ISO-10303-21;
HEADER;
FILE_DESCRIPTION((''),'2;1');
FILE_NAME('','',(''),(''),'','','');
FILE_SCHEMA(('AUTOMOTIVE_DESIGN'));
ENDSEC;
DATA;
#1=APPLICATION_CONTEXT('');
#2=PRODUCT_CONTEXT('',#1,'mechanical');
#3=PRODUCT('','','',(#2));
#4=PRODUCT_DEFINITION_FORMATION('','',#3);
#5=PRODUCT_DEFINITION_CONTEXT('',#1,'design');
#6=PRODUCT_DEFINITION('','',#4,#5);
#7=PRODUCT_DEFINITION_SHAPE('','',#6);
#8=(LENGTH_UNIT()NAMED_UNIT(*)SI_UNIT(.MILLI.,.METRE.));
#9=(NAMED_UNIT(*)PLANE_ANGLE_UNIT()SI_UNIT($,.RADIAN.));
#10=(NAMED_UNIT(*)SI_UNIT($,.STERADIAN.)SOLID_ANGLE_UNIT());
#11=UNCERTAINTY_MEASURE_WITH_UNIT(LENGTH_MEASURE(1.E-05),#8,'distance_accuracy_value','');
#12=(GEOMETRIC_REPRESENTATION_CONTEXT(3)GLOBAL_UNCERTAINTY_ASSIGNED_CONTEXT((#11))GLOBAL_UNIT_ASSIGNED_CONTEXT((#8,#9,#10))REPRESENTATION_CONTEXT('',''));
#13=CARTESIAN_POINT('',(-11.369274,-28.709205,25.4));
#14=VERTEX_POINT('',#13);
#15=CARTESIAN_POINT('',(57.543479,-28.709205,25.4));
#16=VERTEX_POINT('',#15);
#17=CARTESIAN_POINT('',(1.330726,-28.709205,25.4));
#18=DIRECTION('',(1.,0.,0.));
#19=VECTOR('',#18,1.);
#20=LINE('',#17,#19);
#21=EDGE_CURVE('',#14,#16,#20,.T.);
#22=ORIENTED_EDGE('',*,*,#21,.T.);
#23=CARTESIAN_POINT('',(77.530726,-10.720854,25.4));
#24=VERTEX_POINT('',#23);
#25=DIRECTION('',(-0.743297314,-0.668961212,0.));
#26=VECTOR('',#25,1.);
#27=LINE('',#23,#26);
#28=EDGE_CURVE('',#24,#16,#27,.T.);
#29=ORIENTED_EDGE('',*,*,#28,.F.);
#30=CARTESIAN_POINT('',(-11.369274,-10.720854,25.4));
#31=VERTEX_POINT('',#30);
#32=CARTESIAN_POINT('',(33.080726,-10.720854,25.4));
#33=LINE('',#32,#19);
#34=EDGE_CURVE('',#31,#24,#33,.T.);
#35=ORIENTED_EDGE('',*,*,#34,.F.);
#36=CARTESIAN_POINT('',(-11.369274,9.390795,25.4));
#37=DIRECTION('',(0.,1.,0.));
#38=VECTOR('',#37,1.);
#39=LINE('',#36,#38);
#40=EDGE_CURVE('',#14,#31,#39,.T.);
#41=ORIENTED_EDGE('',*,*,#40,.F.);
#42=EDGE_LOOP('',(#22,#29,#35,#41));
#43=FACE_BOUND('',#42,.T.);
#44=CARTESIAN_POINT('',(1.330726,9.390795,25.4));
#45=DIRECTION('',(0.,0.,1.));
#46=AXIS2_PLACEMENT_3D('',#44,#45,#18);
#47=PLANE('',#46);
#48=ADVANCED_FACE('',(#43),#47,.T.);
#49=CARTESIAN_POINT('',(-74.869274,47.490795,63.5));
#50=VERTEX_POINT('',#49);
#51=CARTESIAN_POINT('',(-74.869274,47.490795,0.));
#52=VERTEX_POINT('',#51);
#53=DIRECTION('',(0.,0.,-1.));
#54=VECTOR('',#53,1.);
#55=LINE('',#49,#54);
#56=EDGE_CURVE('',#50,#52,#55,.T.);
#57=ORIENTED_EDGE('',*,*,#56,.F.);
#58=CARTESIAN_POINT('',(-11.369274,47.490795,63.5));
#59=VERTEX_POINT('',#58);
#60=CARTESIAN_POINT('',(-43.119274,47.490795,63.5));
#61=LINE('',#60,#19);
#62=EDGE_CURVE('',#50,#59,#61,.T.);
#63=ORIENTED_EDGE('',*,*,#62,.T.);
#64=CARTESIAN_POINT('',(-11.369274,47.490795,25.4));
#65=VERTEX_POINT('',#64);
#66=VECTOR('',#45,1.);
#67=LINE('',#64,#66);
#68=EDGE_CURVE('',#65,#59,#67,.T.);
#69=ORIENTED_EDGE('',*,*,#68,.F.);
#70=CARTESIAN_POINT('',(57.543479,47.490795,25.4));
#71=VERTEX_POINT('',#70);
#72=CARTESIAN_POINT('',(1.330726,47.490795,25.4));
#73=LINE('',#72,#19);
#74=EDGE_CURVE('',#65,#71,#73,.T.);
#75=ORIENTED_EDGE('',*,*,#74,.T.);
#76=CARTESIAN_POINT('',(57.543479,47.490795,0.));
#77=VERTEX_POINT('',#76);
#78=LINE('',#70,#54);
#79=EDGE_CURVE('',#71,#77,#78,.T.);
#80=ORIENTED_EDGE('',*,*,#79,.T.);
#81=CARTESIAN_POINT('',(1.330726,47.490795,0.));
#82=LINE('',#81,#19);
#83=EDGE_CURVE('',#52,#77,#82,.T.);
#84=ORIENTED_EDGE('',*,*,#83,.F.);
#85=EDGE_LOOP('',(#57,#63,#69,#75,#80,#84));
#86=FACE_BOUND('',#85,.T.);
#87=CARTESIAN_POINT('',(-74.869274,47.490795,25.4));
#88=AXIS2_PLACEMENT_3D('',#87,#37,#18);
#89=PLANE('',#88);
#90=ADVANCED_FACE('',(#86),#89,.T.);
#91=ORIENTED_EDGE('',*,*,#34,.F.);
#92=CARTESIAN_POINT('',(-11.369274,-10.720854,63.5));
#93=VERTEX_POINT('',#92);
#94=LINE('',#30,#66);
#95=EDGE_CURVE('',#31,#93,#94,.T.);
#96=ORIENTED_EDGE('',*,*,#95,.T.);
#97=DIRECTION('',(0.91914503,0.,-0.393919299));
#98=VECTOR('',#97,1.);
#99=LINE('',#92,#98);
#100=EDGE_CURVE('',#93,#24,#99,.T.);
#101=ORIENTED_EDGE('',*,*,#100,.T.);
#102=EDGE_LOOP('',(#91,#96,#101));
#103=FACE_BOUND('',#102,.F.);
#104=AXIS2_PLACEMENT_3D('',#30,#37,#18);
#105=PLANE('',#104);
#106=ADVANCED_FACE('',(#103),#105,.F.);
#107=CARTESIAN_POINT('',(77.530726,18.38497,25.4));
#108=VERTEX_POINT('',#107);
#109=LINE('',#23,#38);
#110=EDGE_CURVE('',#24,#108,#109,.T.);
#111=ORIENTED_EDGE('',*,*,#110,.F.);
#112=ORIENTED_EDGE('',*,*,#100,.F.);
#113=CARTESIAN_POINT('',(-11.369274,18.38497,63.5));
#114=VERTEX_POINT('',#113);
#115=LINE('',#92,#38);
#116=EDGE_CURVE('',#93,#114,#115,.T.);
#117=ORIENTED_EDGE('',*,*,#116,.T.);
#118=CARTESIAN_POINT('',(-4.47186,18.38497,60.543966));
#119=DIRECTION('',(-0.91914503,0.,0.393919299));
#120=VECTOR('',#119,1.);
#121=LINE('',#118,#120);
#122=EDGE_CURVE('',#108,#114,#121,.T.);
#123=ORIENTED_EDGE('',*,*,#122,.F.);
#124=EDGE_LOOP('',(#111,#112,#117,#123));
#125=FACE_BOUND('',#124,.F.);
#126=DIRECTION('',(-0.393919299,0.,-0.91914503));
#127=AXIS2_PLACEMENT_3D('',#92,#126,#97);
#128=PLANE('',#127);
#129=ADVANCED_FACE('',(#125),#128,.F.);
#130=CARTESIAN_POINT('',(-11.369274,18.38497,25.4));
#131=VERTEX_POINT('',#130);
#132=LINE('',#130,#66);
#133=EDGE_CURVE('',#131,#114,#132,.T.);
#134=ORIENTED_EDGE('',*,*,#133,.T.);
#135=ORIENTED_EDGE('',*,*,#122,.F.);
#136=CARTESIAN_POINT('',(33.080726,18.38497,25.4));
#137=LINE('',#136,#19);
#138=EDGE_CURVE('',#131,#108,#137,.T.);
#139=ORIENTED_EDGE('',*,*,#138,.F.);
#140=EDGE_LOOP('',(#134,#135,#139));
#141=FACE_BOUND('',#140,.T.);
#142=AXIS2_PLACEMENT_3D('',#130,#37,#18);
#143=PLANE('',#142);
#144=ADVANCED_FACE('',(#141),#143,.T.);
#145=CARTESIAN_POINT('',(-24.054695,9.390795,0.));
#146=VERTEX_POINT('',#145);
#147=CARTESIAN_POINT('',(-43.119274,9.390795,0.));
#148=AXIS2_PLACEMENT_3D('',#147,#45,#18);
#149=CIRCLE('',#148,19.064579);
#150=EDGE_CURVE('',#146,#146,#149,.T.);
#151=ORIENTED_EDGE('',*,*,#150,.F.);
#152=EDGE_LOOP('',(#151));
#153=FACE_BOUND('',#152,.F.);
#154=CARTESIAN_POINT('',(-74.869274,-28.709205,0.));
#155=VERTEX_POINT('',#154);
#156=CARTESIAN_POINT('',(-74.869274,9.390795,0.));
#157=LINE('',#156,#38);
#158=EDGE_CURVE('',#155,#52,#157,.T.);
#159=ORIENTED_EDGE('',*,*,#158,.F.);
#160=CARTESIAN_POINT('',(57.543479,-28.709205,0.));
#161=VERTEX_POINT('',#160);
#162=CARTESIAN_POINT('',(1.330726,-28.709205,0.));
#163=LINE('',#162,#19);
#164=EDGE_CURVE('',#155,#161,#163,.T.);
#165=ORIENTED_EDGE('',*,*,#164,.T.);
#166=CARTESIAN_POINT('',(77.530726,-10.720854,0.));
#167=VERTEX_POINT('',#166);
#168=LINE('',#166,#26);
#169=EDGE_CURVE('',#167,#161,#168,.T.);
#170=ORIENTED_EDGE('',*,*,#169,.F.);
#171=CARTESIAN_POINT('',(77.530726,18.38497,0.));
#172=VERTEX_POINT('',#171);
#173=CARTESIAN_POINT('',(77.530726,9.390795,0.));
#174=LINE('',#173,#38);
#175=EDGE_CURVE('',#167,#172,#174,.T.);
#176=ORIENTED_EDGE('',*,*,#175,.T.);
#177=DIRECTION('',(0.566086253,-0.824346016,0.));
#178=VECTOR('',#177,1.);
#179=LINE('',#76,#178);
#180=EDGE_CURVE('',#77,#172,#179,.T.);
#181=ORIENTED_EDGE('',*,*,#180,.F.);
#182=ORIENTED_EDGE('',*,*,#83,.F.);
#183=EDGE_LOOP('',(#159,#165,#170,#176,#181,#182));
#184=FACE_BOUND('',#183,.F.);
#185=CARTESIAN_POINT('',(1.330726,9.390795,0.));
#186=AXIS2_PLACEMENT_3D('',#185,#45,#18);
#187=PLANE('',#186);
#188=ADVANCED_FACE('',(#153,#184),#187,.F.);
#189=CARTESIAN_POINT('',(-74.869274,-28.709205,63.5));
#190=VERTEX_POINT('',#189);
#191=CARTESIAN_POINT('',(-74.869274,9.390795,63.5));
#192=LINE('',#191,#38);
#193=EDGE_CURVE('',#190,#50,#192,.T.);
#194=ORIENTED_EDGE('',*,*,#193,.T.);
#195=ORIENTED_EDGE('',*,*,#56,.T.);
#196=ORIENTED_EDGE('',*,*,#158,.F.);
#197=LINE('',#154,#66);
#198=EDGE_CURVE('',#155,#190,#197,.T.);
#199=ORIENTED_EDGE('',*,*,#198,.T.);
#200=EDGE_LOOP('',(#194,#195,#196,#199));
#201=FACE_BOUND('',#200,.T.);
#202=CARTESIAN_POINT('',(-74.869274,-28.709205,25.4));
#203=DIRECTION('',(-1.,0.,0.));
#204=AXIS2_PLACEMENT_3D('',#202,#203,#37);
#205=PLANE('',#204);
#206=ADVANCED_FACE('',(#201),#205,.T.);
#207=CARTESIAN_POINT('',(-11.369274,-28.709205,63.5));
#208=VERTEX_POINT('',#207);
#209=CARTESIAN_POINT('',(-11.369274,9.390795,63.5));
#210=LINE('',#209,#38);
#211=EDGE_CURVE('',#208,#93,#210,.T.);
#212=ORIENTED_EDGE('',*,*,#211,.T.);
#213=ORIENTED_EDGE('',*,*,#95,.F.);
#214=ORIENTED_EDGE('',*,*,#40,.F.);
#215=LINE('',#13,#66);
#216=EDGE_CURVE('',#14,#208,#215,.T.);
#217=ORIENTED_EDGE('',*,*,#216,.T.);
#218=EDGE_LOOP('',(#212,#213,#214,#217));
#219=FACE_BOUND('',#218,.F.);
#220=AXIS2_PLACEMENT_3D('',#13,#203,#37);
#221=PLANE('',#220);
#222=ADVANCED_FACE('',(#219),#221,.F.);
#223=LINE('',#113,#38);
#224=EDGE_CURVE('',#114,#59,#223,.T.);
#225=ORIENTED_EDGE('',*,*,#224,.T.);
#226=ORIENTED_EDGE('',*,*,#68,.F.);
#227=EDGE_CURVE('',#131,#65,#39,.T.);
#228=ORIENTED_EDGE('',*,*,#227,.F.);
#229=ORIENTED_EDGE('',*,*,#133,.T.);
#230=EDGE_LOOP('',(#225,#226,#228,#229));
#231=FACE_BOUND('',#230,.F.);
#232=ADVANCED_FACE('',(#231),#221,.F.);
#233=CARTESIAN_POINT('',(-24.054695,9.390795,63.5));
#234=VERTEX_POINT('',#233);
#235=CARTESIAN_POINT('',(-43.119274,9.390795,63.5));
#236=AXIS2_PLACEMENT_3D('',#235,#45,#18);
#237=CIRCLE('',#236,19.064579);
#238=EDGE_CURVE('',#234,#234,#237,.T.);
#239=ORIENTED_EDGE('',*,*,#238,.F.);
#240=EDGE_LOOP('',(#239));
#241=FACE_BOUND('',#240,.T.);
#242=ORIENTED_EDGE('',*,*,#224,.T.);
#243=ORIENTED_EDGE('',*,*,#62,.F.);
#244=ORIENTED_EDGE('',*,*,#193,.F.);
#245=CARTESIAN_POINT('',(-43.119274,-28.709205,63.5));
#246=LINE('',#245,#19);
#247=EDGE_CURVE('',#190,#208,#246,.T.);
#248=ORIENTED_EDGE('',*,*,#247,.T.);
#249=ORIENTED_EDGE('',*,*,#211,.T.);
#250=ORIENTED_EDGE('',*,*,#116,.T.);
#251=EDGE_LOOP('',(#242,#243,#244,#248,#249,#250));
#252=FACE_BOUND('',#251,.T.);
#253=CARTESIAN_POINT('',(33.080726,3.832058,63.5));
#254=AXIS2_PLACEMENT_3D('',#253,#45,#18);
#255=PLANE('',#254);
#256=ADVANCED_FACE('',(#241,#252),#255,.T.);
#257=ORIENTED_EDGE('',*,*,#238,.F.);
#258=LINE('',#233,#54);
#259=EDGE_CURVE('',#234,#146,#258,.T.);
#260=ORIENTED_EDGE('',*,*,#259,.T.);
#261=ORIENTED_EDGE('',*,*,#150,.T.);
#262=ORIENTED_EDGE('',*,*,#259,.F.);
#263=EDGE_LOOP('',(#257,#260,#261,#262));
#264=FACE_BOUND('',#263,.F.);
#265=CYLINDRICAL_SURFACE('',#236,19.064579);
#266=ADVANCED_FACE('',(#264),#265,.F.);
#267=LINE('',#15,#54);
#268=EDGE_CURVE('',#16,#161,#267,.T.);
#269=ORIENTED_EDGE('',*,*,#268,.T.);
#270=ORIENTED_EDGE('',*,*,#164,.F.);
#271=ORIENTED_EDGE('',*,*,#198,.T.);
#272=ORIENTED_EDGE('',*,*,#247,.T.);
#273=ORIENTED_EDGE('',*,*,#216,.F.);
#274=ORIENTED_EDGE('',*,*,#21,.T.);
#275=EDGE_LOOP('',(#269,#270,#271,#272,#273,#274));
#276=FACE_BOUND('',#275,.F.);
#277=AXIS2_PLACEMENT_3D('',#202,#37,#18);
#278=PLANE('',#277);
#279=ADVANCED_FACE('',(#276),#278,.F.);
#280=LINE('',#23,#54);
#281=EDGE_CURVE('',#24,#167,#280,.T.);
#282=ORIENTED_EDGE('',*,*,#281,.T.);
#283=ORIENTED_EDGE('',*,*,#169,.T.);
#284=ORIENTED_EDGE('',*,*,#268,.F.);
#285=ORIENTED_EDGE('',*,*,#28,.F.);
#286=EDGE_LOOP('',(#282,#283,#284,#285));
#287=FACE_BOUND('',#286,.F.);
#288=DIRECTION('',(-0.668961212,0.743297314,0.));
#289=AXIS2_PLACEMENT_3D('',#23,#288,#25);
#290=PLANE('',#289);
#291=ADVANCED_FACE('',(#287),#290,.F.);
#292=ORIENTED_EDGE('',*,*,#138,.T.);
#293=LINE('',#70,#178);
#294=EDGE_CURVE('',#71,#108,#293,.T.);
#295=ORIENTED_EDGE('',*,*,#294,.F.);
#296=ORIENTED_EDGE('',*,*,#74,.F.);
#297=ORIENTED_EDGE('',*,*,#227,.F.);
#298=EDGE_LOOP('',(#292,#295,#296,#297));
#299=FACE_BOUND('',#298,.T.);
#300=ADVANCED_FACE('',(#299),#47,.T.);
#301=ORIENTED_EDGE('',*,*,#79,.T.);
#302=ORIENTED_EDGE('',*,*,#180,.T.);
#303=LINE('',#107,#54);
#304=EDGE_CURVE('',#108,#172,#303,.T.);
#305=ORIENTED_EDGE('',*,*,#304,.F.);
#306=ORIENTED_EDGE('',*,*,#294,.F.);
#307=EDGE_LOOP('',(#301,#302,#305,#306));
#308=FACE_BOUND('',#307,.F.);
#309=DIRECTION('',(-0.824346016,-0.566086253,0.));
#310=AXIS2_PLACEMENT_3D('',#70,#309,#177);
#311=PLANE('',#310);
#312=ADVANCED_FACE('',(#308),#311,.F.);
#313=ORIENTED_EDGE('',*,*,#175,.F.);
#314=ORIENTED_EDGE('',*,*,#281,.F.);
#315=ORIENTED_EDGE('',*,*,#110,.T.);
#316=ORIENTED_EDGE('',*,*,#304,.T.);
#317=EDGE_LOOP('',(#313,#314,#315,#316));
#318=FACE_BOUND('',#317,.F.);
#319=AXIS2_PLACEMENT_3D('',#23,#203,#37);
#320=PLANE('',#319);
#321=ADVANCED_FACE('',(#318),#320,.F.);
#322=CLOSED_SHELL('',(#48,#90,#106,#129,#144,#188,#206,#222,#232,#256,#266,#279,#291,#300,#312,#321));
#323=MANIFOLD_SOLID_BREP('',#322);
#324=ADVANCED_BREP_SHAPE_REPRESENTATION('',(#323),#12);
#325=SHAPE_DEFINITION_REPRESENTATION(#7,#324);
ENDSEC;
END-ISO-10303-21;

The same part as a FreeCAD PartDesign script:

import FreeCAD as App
import Part
import Sketcher
Q = App.Units.Quantity

doc = App.newDocument("Part")
params = doc.addObject("Spreadsheet::Sheet", "Params")
for row, (alias, value) in enumerate([
    ("sketch1_width", "6 in"),
    ("sketch1_height", "3 in"),
    ("pad1_length", "1 in"),
    ("sketch2_height", "3 in"),
    ("sketch2_width", "2.5 in"),
    ("pad2_length", "1.5 in"),
    ("pocket1_length", "1 in"),
    ("pocket2_length", "1 in"),
    ("sketch5_width", "3.5 in"),
    ("pad3_length", "1.5 in"),
    ("sketch6_width", "3.5 in"),
    ("sketch6_height", "1.5 in"),
    ("pocket3_length", "1.5 in"),
    ("pocket4_length", "3 in"),
], start=1):
    params.set(f"A{row}", alias)
    params.set(f"B{row}", "=" + value)
    params.setAlias(f"B{row}", alias)

body = doc.addObject("PartDesign::Body", "Body")

# Sketch on XY plane
sketch1 = doc.addObject("Sketcher::SketchObject", "Sketch")
body.addObject(sketch1)
sketch1.AttachmentSupport = (doc.XY_Plane, [""])
sketch1.MapMode = "FlatFace"
sketch1.addGeometry([
    Part.LineSegment(App.Vector(-75, 47, 0), App.Vector(-75, -29, 0)),
    Part.LineSegment(App.Vector(-75, -29, 0), App.Vector(78, -29, 0)),
    Part.LineSegment(App.Vector(78, -29, 0), App.Vector(78, 47, 0)),
    Part.LineSegment(App.Vector(78, 47, 0), App.Vector(-75, 47, 0)),
], False)
sketch1.addConstraint([
    Sketcher.Constraint("Coincident", 0, 2, 1, 1),
    Sketcher.Constraint("Coincident", 1, 2, 2, 1),
    Sketcher.Constraint("Coincident", 2, 2, 3, 1),
    Sketcher.Constraint("Coincident", 3, 2, 0, 1),
    Sketcher.Constraint("Vertical", 0),
    Sketcher.Constraint("Horizontal", 1),
    Sketcher.Constraint("Vertical", 2),
    Sketcher.Constraint("Horizontal", 3),
    Sketcher.Constraint("DistanceX", 1, 1, 1, 2, Q("6 in")),
    Sketcher.Constraint("DistanceY", 0, 2, 0, 1, Q("3 in")),
    Sketcher.Constraint("DistanceX", 0, 2, -1, 1, Q("74.869274 mm")),
    Sketcher.Constraint("DistanceY", 0, 2, -1, 1, Q("28.709205 mm")),
])
sketch1.setExpression("Constraints[8]", "Params.sketch1_width")
sketch1.setExpression("Constraints[9]", "Params.sketch1_height")
pad1 = doc.addObject("PartDesign::Pad", "Pad")
body.addObject(pad1)
pad1.Profile = sketch1
pad1.setExpression("Length", "Params.pad1_length")

# Sketch on XY plane
sketch2 = doc.addObject("Sketcher::SketchObject", "Sketch001")
body.addObject(sketch2)
sketch2.AttachmentSupport = (doc.XY_Plane, [""])
sketch2.MapMode = "FlatFace"
sketch2.AttachmentOffset = App.Placement(App.Vector(0, 0, 1 * 25.4), App.Rotation())
sketch2.addGeometry([
    Part.LineSegment(App.Vector(-75, 47, 0), App.Vector(-75, -29, 0)),
    Part.LineSegment(App.Vector(-75, -29, 0), App.Vector(-11, -29, 0)),
    Part.LineSegment(App.Vector(-11, -29, 0), App.Vector(-11, 47, 0)),
    Part.LineSegment(App.Vector(-11, 47, 0), App.Vector(-75, 47, 0)),
], False)
sketch2.addConstraint([
    Sketcher.Constraint("Coincident", 0, 2, 1, 1),
    Sketcher.Constraint("Coincident", 1, 2, 2, 1),
    Sketcher.Constraint("Coincident", 2, 2, 3, 1),
    Sketcher.Constraint("Coincident", 3, 2, 0, 1),
    Sketcher.Constraint("Vertical", 0),
    Sketcher.Constraint("Horizontal", 1),
    Sketcher.Constraint("Vertical", 2),
    Sketcher.Constraint("Horizontal", 3),
    Sketcher.Constraint("DistanceY", 0, 2, 0, 1, Q("3 in")),
    Sketcher.Constraint("DistanceX", 1, 1, 1, 2, Q("2.5 in")),
    Sketcher.Constraint("DistanceX", 0, 2, -1, 1, Q("74.869274 mm")),
    Sketcher.Constraint("DistanceY", 0, 2, -1, 1, Q("28.709205 mm")),
])
sketch2.setExpression("Constraints[8]", "Params.sketch2_height")
sketch2.setExpression("Constraints[9]", "Params.sketch2_width")
pad2 = doc.addObject("PartDesign::Pad", "Pad001")
body.addObject(pad2)
pad2.Profile = sketch2
pad2.setExpression("Length", "Params.pad2_length")

# Sketch on XY plane
sketch3 = doc.addObject("Sketcher::SketchObject", "Sketch002")
body.addObject(sketch3)
sketch3.AttachmentSupport = (doc.XY_Plane, [""])
sketch3.MapMode = "FlatFace"
sketch3.AttachmentOffset = App.Placement(App.Vector(0, 0, 1 * 25.4), App.Rotation())
sketch3.addGeometry([
    Part.LineSegment(App.Vector(58, -29, 0), App.Vector(78, -29, 0)),
    Part.LineSegment(App.Vector(78, -29, 0), App.Vector(78, -11, 0)),
    Part.LineSegment(App.Vector(78, -11, 0), App.Vector(58, -29, 0)),
], False)
sketch3.addConstraint([
    Sketcher.Constraint("Coincident", 0, 2, 1, 1),
    Sketcher.Constraint("Coincident", 1, 2, 2, 1),
    Sketcher.Constraint("Coincident", 2, 2, 0, 1),
    Sketcher.Constraint("Horizontal", 0),
    Sketcher.Constraint("Vertical", 1),
    Sketcher.Constraint("DistanceY", 1, 1, 1, 2, Q("17.988351 mm")),
    Sketcher.Constraint("DistanceX", 0, 1, 0, 2, Q("19.987247 mm")),
    Sketcher.Constraint("DistanceX", -1, 1, 2, 2, Q("57.543479 mm")),
    Sketcher.Constraint("DistanceY", 0, 2, -1, 1, Q("28.709205 mm")),
])
pocket1 = doc.addObject("PartDesign::Pocket", "Pocket")
body.addObject(pocket1)
pocket1.Profile = sketch3
pocket1.setExpression("Length", "Params.pocket1_length")

# Sketch on XY plane
sketch4 = doc.addObject("Sketcher::SketchObject", "Sketch003")
body.addObject(sketch4)
sketch4.AttachmentSupport = (doc.XY_Plane, [""])
sketch4.MapMode = "FlatFace"
sketch4.AttachmentOffset = App.Placement(App.Vector(0, 0, 1 * 25.4), App.Rotation())
sketch4.addGeometry([
    Part.LineSegment(App.Vector(78, 47, 0), App.Vector(58, 47, 0)),
    Part.LineSegment(App.Vector(58, 47, 0), App.Vector(78, 18, 0)),
    Part.LineSegment(App.Vector(78, 18, 0), App.Vector(78, 47, 0)),
], False)
sketch4.addConstraint([
    Sketcher.Constraint("Coincident", 0, 2, 1, 1),
    Sketcher.Constraint("Coincident", 1, 2, 2, 1),
    Sketcher.Constraint("Coincident", 2, 2, 0, 1),
    Sketcher.Constraint("Horizontal", 0),
    Sketcher.Constraint("Vertical", 2),
    Sketcher.Constraint("DistanceX", 0, 2, 0, 1, Q("19.987247 mm")),
    Sketcher.Constraint("DistanceY", 2, 1, 2, 2, Q("29.105825 mm")),
    Sketcher.Constraint("DistanceX", -1, 1, 0, 2, Q("57.543479 mm")),
    Sketcher.Constraint("DistanceY", -1, 1, 1, 2, Q("18.38497 mm")),
])
pocket2 = doc.addObject("PartDesign::Pocket", "Pocket001")
body.addObject(pocket2)
pocket2.Profile = sketch4
pocket2.setExpression("Length", "Params.pocket2_length")

# Sketch on XY plane
sketch5 = doc.addObject("Sketcher::SketchObject", "Sketch004")
body.addObject(sketch5)
sketch5.AttachmentSupport = (doc.XY_Plane, [""])
sketch5.MapMode = "FlatFace"
sketch5.AttachmentOffset = App.Placement(App.Vector(0, 0, 1 * 25.4), App.Rotation())
sketch5.addGeometry([
    Part.LineSegment(App.Vector(-11, 18, 0), App.Vector(-11, -11, 0)),
    Part.LineSegment(App.Vector(-11, -11, 0), App.Vector(78, -11, 0)),
    Part.LineSegment(App.Vector(78, -11, 0), App.Vector(78, 18, 0)),
    Part.LineSegment(App.Vector(78, 18, 0), App.Vector(-11, 18, 0)),
], False)
sketch5.addConstraint([
    Sketcher.Constraint("Coincident", 0, 2, 1, 1),
    Sketcher.Constraint("Coincident", 1, 2, 2, 1),
    Sketcher.Constraint("Coincident", 2, 2, 3, 1),
    Sketcher.Constraint("Coincident", 3, 2, 0, 1),
    Sketcher.Constraint("Vertical", 0),
    Sketcher.Constraint("Horizontal", 1),
    Sketcher.Constraint("Vertical", 2),
    Sketcher.Constraint("Horizontal", 3),
    Sketcher.Constraint("DistanceX", 1, 1, 1, 2, Q("3.5 in")),
    Sketcher.Constraint("DistanceY", 0, 2, 0, 1, Q("29.105824 mm")),
    Sketcher.Constraint("DistanceY", -1, 1, 2, 2, Q("18.38497 mm")),
    Sketcher.Constraint("DistanceX", 0, 2, -1, 1, Q("11.369274 mm")),
])
sketch5.setExpression("Constraints[8]", "Params.sketch5_width")
pad3 = doc.addObject("PartDesign::Pad", "Pad002")
body.addObject(pad3)
pad3.Profile = sketch5
pad3.setExpression("Length", "Params.pad3_length")

# Sketch on XZ plane
sketch6 = doc.addObject("Sketcher::SketchObject", "Sketch005")
body.addObject(sketch6)
sketch6.AttachmentSupport = (doc.XZ_Plane, [""])
sketch6.MapMode = "FlatFace"
sketch6.AttachmentOffset = App.Placement(App.Vector(0, 0, 10.720854), App.Rotation())
sketch6.addGeometry([
    Part.LineSegment(App.Vector(78, 64, 0), App.Vector(-11, 64, 0)),
    Part.LineSegment(App.Vector(-11, 64, 0), App.Vector(78, 25, 0)),
    Part.LineSegment(App.Vector(78, 25, 0), App.Vector(78, 64, 0)),
], False)
sketch6.addConstraint([
    Sketcher.Constraint("Coincident", 0, 2, 1, 1),
    Sketcher.Constraint("Coincident", 1, 2, 2, 1),
    Sketcher.Constraint("Coincident", 2, 2, 0, 1),
    Sketcher.Constraint("Horizontal", 0),
    Sketcher.Constraint("Vertical", 2),
    Sketcher.Constraint("DistanceX", 0, 2, 0, 1, Q("3.5 in")),
    Sketcher.Constraint("DistanceY", 2, 1, 2, 2, Q("1.5 in")),
    Sketcher.Constraint("DistanceY", -1, 1, 1, 2, Q("1 in")),
    Sketcher.Constraint("DistanceX", 0, 2, -1, 1, Q("11.369274 mm")),
])
sketch6.setExpression("Constraints[5]", "Params.sketch6_width")
sketch6.setExpression("Constraints[6]", "Params.sketch6_height")
pocket3 = doc.addObject("PartDesign::Pocket", "Pocket002")
body.addObject(pocket3)
pocket3.Profile = sketch6
pocket3.setExpression("Length", "Params.pocket3_length")

# Sketch on XY plane
sketch7 = doc.addObject("Sketcher::SketchObject", "Sketch006")
body.addObject(sketch7)
sketch7.AttachmentSupport = (doc.XY_Plane, [""])
sketch7.MapMode = "FlatFace"
sketch7.AttachmentOffset = App.Placement(App.Vector(0, 0, 2.5 * 25.4), App.Rotation())
sketch7.addGeometry(Part.Circle(App.Vector(-43, 9, 0), App.Vector(0, 0, 1), 19), False)
sketch7.addConstraint([
    Sketcher.Constraint("Diameter", 0, Q("38.129158 mm")),
    Sketcher.Constraint("DistanceX", 0, 3, -1, 1, Q("43.119274 mm")),
    Sketcher.Constraint("DistanceY", -1, 1, 0, 3, Q("9.390795 mm")),
])
pocket4 = doc.addObject("PartDesign::Pocket", "Pocket003")
body.addObject(pocket4)
pocket4.Profile = sketch7
pocket4.setExpression("Length", "Params.pocket4_length")

doc.recompute()
